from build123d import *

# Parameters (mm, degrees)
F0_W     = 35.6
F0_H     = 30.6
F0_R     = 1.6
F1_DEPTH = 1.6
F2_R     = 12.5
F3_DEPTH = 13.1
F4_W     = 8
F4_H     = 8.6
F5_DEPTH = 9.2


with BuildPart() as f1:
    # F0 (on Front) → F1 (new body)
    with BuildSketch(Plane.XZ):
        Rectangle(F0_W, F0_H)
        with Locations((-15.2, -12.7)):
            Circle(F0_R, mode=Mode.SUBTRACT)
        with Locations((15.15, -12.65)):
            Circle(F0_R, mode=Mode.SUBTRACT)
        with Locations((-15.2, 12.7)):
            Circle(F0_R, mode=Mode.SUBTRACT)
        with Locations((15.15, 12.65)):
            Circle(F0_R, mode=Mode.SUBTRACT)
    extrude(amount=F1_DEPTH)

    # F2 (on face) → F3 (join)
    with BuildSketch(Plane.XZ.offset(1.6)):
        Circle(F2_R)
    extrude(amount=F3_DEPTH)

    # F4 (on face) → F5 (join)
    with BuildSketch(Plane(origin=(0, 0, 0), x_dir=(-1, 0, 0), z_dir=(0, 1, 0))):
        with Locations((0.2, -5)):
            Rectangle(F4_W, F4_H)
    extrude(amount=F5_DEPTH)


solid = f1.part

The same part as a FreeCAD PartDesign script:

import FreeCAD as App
import Part
import Sketcher
Q = App.Units.Quantity

doc = App.newDocument("Part")
params = doc.addObject("Spreadsheet::Sheet", "Params")
for row, (alias, value) in enumerate([
    ("sketch1_diameter", "3.2 mm"),
    ("sketch1_width", "35.6 mm"),
    ("sketch1_height", "30.6 mm"),
    ("pad1_length", "1.6 mm"),
    ("sketch2_diameter", "25 mm"),
    ("pad2_length", "13.1 mm"),
    ("sketch3_width", "8 mm"),
    ("sketch3_height", "8.6 mm"),
    ("pad3_length", "9.2 mm"),
], start=1):
    params.set(f"A{row}", alias)
    params.set(f"B{row}", "=" + value)
    params.setAlias(f"B{row}", alias)

body = doc.addObject("PartDesign::Body", "Body")

sketch1 = body.newObject("Sketcher::SketchObject", "Sketch")
sketch1.AttachmentSupport = (doc.getObject("XZ_Plane"), [""])
sketch1.MapMode = "FlatFace"
sketch1.addGeometry(Part.LineSegment(App.Vector(-17.8, 15.3, 0), App.Vector(-17.8, -15.3, 0)), False)
sketch1.addGeometry(Part.LineSegment(App.Vector(-17.8, -15.3, 0), App.Vector(17.8, -15.3, 0)), False)
sketch1.addGeometry(Part.LineSegment(App.Vector(17.8, -15.3, 0), App.Vector(17.8, 15.3, 0)), False)
sketch1.addGeometry(Part.LineSegment(App.Vector(17.8, 15.3, 0), App.Vector(-17.8, 15.3, 0)), False)
sketch1.addGeometry(Part.Circle(App.Vector(-15.2, -12.7, 0), App.Vector(0, 0, 1), 1.6), False)
sketch1.addGeometry(Part.Circle(App.Vector(15.2, -12.7, 0), App.Vector(0, 0, 1), 1.6), False)
sketch1.addGeometry(Part.Circle(App.Vector(-15.2, 12.7, 0), App.Vector(0, 0, 1), 1.6), False)
sketch1.addGeometry(Part.Circle(App.Vector(15.2, 12.7, 0), App.Vector(0, 0, 1), 1.6), False)
sketch1.addConstraint(Sketcher.Constraint("Coincident", 0, 2, 1, 1))
sketch1.addConstraint(Sketcher.Constraint("Coincident", 1, 2, 2, 1))
sketch1.addConstraint(Sketcher.Constraint("Coincident", 2, 2, 3, 1))
sketch1.addConstraint(Sketcher.Constraint("Coincident", 3, 2, 0, 1))
sketch1.addConstraint(Sketcher.Constraint("Vertical", 0))
sketch1.addConstraint(Sketcher.Constraint("Horizontal", 1))
sketch1.addConstraint(Sketcher.Constraint("Vertical", 2))
sketch1.addConstraint(Sketcher.Constraint("Horizontal", 3))
sketch1.addConstraint(Sketcher.Constraint("Equal", 4, 5))
sketch1.addConstraint(Sketcher.Constraint("Equal", 5, 6))
sketch1.addConstraint(Sketcher.Constraint("Equal", 6, 7))
sketch1.addConstraint(Sketcher.Constraint("Symmetric", 0, 2, 2, 2, -1, 1))
sketch1.addConstraint(Sketcher.Constraint("Symmetric", 4, 3, 6, 3, -1))
sketch1.addConstraint(Sketcher.Constraint("Symmetric", 5, 3, 7, 3, -1))
sketch1.addConstraint(Sketcher.Constraint("Diameter", 4, Q("3.2 mm")))
sketch1.addConstraint(Sketcher.Constraint("DistanceX", 1, 1, 1, 2, Q("35.6 mm")))
sketch1.addConstraint(Sketcher.Constraint("DistanceY", 0, 2, 0, 1, Q("30.6 mm")))
sketch1.addConstraint(Sketcher.Constraint("DistanceY", 0, 2, 6, 3, Q("28 mm")))
sketch1.addConstraint(Sketcher.Constraint("DistanceX", 4, 3, 1, 2, Q("33 mm")))
sketch1.addConstraint(Sketcher.Constraint("DistanceY", 5, 3, 7, 3, Q("25.3 mm")))
sketch1.addConstraint(Sketcher.Constraint("DistanceX", -1, 1, 5, 3, Q("15.15 mm")))
sketch1.setExpression("Constraints[14]", "Params.sketch1_diameter")
sketch1.setExpression("Constraints[15]", "Params.sketch1_width")
sketch1.setExpression("Constraints[16]", "Params.sketch1_height")
pad1 = body.newObject("PartDesign::Pad", "Pad")
pad1.Profile = sketch1
pad1.setExpression("Length", "Params.pad1_length")

sketch2 = body.newObject("Sketcher::SketchObject", "Sketch001")
sketch2.AttachmentSupport = (doc.getObject("XZ_Plane"), [""])
sketch2.MapMode = "FlatFace"
sketch2.AttachmentOffset = App.Placement(App.Vector(0, 0, 1.6), App.Rotation())
sketch2.addGeometry(Part.Circle(App.Vector(0, 0, 0), App.Vector(0, 0, 1), 12), False)
sketch2.addConstraint(Sketcher.Constraint("Coincident", 0, 3, -1, 1))
sketch2.addConstraint(Sketcher.Constraint("Diameter", 0, Q("25 mm")))
sketch2.setExpression("Constraints[1]", "Params.sketch2_diameter")
pad2 = body.newObject("PartDesign::Pad", "Pad001")
pad2.Profile = sketch2
pad2.setExpression("Length", "Params.pad2_length")

sketch3 = body.newObject("Sketcher::SketchObject", "Sketch002")
sketch3.AttachmentSupport = (doc.getObject("XZ_Plane"), [""])
sketch3.MapMode = "FlatFace"
sketch3.addGeometry(Part.LineSegment(App.Vector(4, -1, 0), App.Vector(4, -9, 0)), False)
sketch3.addGeometry(Part.LineSegment(App.Vector(4, -9, 0), App.Vector(-4, -9, 0)), False)
sketch3.addGeometry(Part.LineSegment(App.Vector(-4, -9, 0), App.Vector(-4, -1, 0)), False)
sketch3.addGeometry(Part.LineSegment(App.Vector(-4, -1, 0), App.Vector(4, -1, 0)), False)
sketch3.addConstraint(Sketcher.Constraint("Coincident", 0, 2, 1, 1))
sketch3.addConstraint(Sketcher.Constraint("Coincident", 1, 2, 2, 1))
sketch3.addConstraint(Sketcher.Constraint("Coincident", 2, 2, 3, 1))
sketch3.addConstraint(Sketcher.Constraint("Coincident", 3, 2, 0, 1))
sketch3.addConstraint(Sketcher.Constraint("Vertical", 0))
sketch3.addConstraint(Sketcher.Constraint("Horizontal", 1))
sketch3.addConstraint(Sketcher.Constraint("Vertical", 2))
sketch3.addConstraint(Sketcher.Constraint("Horizontal", 3))
sketch3.addConstraint(Sketcher.Constraint("DistanceX", 1, 2, 1, 1, Q("8 mm")))
sketch3.addConstraint(Sketcher.Constraint("DistanceY", 0, 2, 0, 1, Q("8.6 mm")))
sketch3.addConstraint(Sketcher.Constraint("DistanceX", -1, 1, 0, 2, Q("3.8 mm")))
sketch3.addConstraint(Sketcher.Constraint("DistanceY", 0, 2, -1, 1, Q("9.3 mm")))
sketch3.setExpression("Constraints[8]", "Params.sketch3_width")
sketch3.setExpression("Constraints[9]", "Params.sketch3_height")
pad3 = body.newObject("PartDesign::Pad", "Pad002")
pad3.Profile = sketch3
pad3.setExpression("Length", "Params.pad3_length")
pad3.Reversed = True

doc.recompute()
